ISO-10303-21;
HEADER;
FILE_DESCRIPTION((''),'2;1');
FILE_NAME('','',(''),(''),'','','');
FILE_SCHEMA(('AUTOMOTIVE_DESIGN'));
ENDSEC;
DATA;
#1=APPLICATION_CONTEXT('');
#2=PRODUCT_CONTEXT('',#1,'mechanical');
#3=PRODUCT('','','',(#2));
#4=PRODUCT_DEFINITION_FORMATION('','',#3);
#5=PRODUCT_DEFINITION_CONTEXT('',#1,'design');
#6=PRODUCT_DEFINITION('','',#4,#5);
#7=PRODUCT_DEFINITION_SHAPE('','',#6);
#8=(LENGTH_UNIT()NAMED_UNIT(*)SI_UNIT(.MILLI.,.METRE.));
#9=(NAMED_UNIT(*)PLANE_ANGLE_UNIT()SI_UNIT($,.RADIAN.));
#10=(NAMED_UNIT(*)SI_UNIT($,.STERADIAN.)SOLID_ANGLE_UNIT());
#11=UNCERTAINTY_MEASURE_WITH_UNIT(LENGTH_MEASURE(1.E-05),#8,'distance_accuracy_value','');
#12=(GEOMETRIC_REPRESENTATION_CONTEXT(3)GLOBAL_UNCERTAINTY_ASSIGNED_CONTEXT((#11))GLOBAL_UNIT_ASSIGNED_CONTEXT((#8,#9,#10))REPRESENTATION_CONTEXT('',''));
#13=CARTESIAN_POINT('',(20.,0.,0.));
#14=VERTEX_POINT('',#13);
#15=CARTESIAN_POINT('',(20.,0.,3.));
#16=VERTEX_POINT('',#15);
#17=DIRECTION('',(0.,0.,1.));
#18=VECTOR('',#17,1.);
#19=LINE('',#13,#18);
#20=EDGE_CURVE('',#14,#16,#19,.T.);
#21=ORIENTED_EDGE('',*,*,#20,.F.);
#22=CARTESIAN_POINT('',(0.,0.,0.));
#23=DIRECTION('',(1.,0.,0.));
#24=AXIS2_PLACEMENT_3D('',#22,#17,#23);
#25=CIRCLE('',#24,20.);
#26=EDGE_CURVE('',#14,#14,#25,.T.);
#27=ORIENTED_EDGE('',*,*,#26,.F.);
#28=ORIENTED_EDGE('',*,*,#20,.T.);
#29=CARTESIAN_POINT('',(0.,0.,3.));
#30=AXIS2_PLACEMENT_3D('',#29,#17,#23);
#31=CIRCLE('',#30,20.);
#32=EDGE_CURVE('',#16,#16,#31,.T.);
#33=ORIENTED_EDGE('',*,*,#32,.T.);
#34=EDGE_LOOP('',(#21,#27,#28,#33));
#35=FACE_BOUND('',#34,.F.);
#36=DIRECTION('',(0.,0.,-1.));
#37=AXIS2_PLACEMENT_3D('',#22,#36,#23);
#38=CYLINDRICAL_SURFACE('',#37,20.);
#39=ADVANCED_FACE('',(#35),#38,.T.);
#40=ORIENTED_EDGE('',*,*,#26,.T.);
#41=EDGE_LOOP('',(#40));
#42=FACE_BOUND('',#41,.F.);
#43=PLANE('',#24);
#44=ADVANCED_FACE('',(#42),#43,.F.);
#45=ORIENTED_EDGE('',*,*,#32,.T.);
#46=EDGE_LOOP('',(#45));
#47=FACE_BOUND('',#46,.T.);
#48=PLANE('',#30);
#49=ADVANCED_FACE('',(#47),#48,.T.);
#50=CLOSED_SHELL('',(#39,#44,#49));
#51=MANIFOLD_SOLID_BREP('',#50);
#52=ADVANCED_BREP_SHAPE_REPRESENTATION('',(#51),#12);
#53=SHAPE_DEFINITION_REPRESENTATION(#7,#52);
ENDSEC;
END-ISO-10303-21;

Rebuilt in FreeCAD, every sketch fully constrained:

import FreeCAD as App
import Part
import Sketcher

V = App.Vector
Q = App.Units.Quantity

doc = App.newDocument("Part")
params = doc.addObject("Spreadsheet::Sheet", "Params")
for row, (alias, value) in enumerate([
    ("sketch1_diameter", "40 mm"),
    ("pad1_length", "3 mm"),
], start=1):
    params.set(f"A{row}", alias)
    params.set(f"B{row}", "=" + value)
    params.setAlias(f"B{row}", alias)

body = doc.addObject("PartDesign::Body", "Body")

# Sketch on XY plane
sketch1 = body.newObject("Sketcher::SketchObject", "Sketch")
sketch1.AttachmentSupport = (doc.getObject("XY_Plane"), [""])
sketch1.MapMode = "FlatFace"
sketch1.addGeometry(Part.Circle(V(0, 0, 0), V(0, 0, 1), 20), False)
sketch1.addConstraint([
    Sketcher.Constraint("Coincident", 0, 3, -1, 1),
    Sketcher.Constraint("Diameter", 0, Q("40 mm")),
])
sketch1.setExpression("Constraints[1]", "Params.sketch1_diameter")
pad1 = body.newObject("PartDesign::Pad", "Pad")
pad1.Profile = sketch1
pad1.setExpression("Length", "Params.pad1_length")

doc.recompute()
